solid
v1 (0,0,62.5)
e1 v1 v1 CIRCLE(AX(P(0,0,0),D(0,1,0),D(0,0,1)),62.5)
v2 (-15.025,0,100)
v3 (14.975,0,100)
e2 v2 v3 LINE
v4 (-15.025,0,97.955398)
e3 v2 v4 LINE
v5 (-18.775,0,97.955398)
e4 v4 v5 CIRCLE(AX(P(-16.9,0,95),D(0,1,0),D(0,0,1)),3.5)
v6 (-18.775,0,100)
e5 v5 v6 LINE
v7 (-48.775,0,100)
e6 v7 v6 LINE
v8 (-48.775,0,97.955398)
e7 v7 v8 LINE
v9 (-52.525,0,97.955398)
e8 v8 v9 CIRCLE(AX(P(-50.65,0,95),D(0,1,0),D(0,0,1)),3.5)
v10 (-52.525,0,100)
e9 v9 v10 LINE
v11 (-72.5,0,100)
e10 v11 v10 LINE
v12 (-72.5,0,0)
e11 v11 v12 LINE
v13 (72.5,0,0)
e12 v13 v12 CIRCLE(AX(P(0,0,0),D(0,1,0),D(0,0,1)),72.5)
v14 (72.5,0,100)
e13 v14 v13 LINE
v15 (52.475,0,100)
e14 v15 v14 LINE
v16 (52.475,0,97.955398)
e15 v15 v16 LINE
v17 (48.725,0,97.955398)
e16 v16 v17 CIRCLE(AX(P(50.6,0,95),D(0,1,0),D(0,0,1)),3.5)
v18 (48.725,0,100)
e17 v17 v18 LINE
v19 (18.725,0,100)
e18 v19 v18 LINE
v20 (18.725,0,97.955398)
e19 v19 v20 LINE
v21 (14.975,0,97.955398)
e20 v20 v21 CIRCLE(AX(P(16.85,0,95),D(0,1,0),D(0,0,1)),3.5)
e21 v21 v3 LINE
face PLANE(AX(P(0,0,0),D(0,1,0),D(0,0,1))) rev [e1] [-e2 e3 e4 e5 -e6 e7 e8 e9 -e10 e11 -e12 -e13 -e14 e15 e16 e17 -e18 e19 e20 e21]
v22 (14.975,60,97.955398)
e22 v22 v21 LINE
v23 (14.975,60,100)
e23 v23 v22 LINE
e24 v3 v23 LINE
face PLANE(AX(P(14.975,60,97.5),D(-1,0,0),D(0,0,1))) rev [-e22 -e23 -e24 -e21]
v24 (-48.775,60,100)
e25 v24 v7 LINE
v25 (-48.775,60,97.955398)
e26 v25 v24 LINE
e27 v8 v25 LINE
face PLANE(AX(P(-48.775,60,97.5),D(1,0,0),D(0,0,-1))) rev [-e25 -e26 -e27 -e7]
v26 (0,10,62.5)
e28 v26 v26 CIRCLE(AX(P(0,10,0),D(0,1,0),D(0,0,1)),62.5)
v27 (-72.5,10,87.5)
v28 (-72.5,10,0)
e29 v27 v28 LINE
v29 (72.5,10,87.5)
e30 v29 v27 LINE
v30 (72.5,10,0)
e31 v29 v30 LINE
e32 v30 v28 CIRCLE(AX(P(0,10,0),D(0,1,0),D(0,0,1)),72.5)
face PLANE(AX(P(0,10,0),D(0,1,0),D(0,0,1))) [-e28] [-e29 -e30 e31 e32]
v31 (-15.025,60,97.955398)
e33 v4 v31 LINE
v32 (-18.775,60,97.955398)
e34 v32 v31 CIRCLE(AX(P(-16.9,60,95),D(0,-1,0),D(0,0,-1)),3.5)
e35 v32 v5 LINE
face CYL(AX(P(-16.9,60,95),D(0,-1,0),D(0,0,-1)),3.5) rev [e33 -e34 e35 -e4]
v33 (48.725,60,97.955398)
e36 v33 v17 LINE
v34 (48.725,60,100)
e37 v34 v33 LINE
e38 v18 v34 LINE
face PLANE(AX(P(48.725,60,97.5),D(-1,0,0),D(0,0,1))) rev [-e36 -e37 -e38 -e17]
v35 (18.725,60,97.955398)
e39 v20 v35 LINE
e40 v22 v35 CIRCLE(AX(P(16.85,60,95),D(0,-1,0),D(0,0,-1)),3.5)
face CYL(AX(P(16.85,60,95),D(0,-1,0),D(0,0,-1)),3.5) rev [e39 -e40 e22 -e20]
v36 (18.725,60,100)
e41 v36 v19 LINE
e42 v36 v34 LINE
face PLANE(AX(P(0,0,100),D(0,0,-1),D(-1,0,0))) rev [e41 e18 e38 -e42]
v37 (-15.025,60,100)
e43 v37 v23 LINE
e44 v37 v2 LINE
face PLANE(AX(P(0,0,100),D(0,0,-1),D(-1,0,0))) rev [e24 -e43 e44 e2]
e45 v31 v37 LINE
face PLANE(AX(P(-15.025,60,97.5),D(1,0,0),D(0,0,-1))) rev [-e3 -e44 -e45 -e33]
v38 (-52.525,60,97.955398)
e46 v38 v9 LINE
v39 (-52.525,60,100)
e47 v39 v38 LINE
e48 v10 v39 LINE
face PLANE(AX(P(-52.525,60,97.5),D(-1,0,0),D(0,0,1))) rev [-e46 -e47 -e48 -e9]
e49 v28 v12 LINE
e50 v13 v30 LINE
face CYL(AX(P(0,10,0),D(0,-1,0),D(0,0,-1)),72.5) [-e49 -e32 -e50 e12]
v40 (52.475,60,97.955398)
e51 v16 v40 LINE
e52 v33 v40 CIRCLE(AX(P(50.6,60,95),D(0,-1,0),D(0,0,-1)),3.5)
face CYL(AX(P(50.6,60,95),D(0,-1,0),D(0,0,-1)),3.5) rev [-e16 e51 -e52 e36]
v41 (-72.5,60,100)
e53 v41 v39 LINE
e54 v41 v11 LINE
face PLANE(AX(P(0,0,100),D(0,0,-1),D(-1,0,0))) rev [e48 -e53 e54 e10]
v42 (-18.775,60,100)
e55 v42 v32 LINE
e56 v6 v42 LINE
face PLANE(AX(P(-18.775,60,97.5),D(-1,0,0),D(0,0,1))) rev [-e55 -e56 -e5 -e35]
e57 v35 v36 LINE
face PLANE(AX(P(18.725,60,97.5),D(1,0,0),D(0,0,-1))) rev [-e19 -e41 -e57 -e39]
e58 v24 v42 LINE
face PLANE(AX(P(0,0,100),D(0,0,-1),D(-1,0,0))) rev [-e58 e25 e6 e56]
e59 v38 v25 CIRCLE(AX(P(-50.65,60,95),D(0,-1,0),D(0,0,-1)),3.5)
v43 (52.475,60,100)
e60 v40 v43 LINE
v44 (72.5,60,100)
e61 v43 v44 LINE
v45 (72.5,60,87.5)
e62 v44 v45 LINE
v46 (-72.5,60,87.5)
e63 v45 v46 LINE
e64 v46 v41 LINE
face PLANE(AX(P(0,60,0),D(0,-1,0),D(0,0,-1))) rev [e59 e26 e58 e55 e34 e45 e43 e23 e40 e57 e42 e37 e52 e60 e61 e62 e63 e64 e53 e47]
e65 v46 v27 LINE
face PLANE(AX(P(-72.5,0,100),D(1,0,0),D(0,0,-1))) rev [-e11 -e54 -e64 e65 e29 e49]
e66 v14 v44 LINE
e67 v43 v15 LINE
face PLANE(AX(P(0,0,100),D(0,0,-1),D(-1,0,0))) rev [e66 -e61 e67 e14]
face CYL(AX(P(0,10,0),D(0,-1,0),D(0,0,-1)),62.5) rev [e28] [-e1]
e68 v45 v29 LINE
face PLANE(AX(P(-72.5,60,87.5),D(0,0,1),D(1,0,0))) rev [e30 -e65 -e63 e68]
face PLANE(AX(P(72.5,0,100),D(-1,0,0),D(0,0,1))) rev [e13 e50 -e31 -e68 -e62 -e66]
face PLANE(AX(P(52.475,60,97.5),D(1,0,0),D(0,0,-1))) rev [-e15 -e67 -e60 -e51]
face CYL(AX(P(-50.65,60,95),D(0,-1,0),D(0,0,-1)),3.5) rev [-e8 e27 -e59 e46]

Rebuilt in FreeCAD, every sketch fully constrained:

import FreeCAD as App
import Part
import Sketcher

V = App.Vector
Q = App.Units.Quantity


def add_polygon(sketch, points):
    """Adds a closed chain of lines whose ends are joined by coincident constraints."""
    first, n = sketch.GeometryCount, len(points)
    for a, b in zip(points, points[1:] + points[:1]):
        sketch.addGeometry(Part.LineSegment(App.Vector(*a, 0), App.Vector(*b, 0)), False)
    for i in range(n):
        sketch.addConstraint(Sketcher.Constraint("Coincident", first + i, 2, first + (i + 1) % n, 1))

doc = App.newDocument("Part")
body = doc.addObject("PartDesign::Body", "Body")

# Sketch on XZ plane
sketch1 = doc.addObject("Sketcher::SketchObject", "Sketch")
body.addObject(sketch1)
sketch1.AttachmentSupport = (doc.XZ_Plane, [""])
sketch1.MapMode = "FlatFace"
sketch1.addGeometry(Part.Circle(V(0, 0, 0), V(0, 0, 1), 72.5), False)
sketch1.addGeometry(Part.Circle(V(0, 0, 0), V(0, 0, 1), 62.5), False)
sketch1.addConstraint(Sketcher.Constraint("Coincident", 0, 3, -1, 1))
sketch1.addConstraint(Sketcher.Constraint("Coincident", 1, 3, -1, 1))
sketch1.addConstraint(Sketcher.Constraint("Diameter", 0, Q("145 mm")))
sketch1.addConstraint(Sketcher.Constraint("Diameter", 1, Q("125 mm")))
pad1 = doc.addObject("PartDesign::Pad", "Pad")
body.addObject(pad1)
pad1.Profile = sketch1
pad1.Length = 10
pad1.Reversed = True

# Sketch on XY plane
sketch2 = doc.addObject("Sketcher::SketchObject", "Sketch001")
body.addObject(sketch2)
sketch2.AttachmentSupport = (doc.XY_Plane, [""])
sketch2.MapMode = "FlatFace"
add_polygon(sketch2, [(-72.5, 10), (-72.5, 0), (-47.5, 0), (-47.5, 10)])  # lines 0-3
add_polygon(sketch2, [(47.5, 10), (47.5, 0), (72.5, 0), (72.5, 10)])  # lines 4-7
sketch2.addConstraint(Sketcher.Constraint("Vertical", 0))
sketch2.addConstraint(Sketcher.Constraint("Horizontal", 1))
sketch2.addConstraint(Sketcher.Constraint("Vertical", 2))
sketch2.addConstraint(Sketcher.Constraint("Horizontal", 3))
sketch2.addConstraint(Sketcher.Constraint("Vertical", 4))
sketch2.addConstraint(Sketcher.Constraint("Horizontal", 5))
sketch2.addConstraint(Sketcher.Constraint("Vertical", 6))
sketch2.addConstraint(Sketcher.Constraint("Horizontal", 7))
sketch2.addConstraint(Sketcher.Constraint("Symmetric", 1, 2, 4, 2, -1, 1))
sketch2.addConstraint(Sketcher.Constraint("Symmetric", 0, 2, 5, 2, -2))
sketch2.addConstraint(Sketcher.Constraint("Horizontal", 3, 2, 6, 2))
sketch2.addConstraint(Sketcher.Constraint("DistanceX", 1, 1, 1, 2, Q("25 mm")))
sketch2.addConstraint(Sketcher.Constraint("DistanceY", 0, 2, 0, 1, Q("10 mm")))
sketch2.addConstraint(Sketcher.Constraint("DistanceX", 1, 2, 4, 2, Q("95 mm")))
pad2 = doc.addObject("PartDesign::Pad", "Pad001")
body.addObject(pad2)
pad2.Profile = sketch2
pad2.Length = 100

# Sketch on XZ plane
sketch3 = doc.addObject("Sketcher::SketchObject", "Sketch002")
body.addObject(sketch3)
sketch3.AttachmentSupport = (doc.XZ_Plane, [""])
sketch3.MapMode = "FlatFace"
sketch3.AttachmentOffset = App.Placement(V(0, 0, -10), App.Rotation())
add_polygon(sketch3, [(-72.5, 50), (-72.5, 100), (72.5, 100), (72.5, 50)])  # lines 0-3
sketch3.addConstraint(Sketcher.Constraint("Vertical", 0))
sketch3.addConstraint(Sketcher.Constraint("Horizontal", 1))
sketch3.addConstraint(Sketcher.Constraint("Vertical", 2))
sketch3.addConstraint(Sketcher.Constraint("Horizontal", 3))
sketch3.addConstraint(Sketcher.Constraint("DistanceX", 1, 1, 1, 2, Q("145 mm")))
sketch3.addConstraint(Sketcher.Constraint("DistanceY", 0, 1, 0, 2, Q("50 mm")))
sketch3.addConstraint(Sketcher.Constraint("DistanceY", -1, 1, 0, 2, Q("100 mm")))
sketch3.addConstraint(Sketcher.Constraint("DistanceX", 0, 2, -1, 1, Q("72.5 mm")))
pad3 = doc.addObject("PartDesign::Pad", "Pad002")
body.addObject(pad3)
pad3.Profile = sketch3
pad3.Length = 10

# Sketch on XZ plane
sketch4 = doc.addObject("Sketcher::SketchObject", "Sketch003")
body.addObject(sketch4)
sketch4.AttachmentSupport = (doc.XZ_Plane, [""])
sketch4.MapMode = "FlatFace"
sketch4.addGeometry(Part.Circle(V(0, 0, 0), V(0, 0, 1), 62.5), False)
sketch4.addConstraint(Sketcher.Constraint("Coincident", 0, 3, -1, 1))
sketch4.addConstraint(Sketcher.Constraint("Diameter", 0, Q("125 mm")))
pocket1 = doc.addObject("PartDesign::Pocket", "Pocket")
body.addObject(pocket1)
pocket1.Profile = sketch4
pocket1.Length = 10

# Sketch on XZ plane
sketch5 = doc.addObject("Sketcher::SketchObject", "Sketch004")
body.addObject(sketch5)
sketch5.AttachmentSupport = (doc.XZ_Plane, [""])
sketch5.MapMode = "FlatFace"
sketch5.AttachmentOffset = App.Placement(V(0, 0, -10), App.Rotation())
add_polygon(sketch5, [(-72.5, 87.5), (-72.5, 100), (72.5, 100), (72.5, 87.5)])  # lines 0-3
sketch5.addConstraint(Sketcher.Constraint("Vertical", 0))
sketch5.addConstraint(Sketcher.Constraint("Horizontal", 1))
sketch5.addConstraint(Sketcher.Constraint("Vertical", 2))
sketch5.addConstraint(Sketcher.Constraint("Horizontal", 3))
sketch5.addConstraint(Sketcher.Constraint("DistanceX", 1, 1, 1, 2, Q("145 mm")))
sketch5.addConstraint(Sketcher.Constraint("DistanceY", 0, 1, 0, 2, Q("12.5 mm")))
sketch5.addConstraint(Sketcher.Constraint("DistanceY", -1, 1, 0, 2, Q("100 mm")))
sketch5.addConstraint(Sketcher.Constraint("DistanceX", 0, 2, -1, 1, Q("72.5 mm")))
pad4 = doc.addObject("PartDesign::Pad", "Pad003")
body.addObject(pad4)
pad4.Profile = sketch5
pad4.Length = 50
pad4.Reversed = True

# Sketch on XZ plane
sketch6 = doc.addObject("Sketcher::SketchObject", "Sketch005")
body.addObject(sketch6)
sketch6.AttachmentSupport = (doc.XZ_Plane, [""])
sketch6.MapMode = "FlatFace"
sketch6.addGeometry(Part.Circle(V(-50.65, 95, 0), V(0, 0, 1), 3.5), False)
sketch6.addGeometry(Part.Circle(V(-16.9, 95, 0), V(0, 0, 1), 3.5), False)
sketch6.addGeometry(Part.Circle(V(16.85, 95, 0), V(0, 0, 1), 3.5), False)
sketch6.addGeometry(Part.Circle(V(50.6, 95, 0), V(0, 0, 1), 3.5), False)
sketch6.addConstraint(Sketcher.Constraint("Equal", 0, 1))
sketch6.addConstraint(Sketcher.Constraint("Equal", 1, 2))
sketch6.addConstraint(Sketcher.Constraint("Equal", 2, 3))
sketch6.addConstraint(Sketcher.Constraint("Horizontal", 0, 3, 1, 3))
sketch6.addConstraint(Sketcher.Constraint("Horizontal", 1, 3, 2, 3))
sketch6.addConstraint(Sketcher.Constraint("Horizontal", 2, 3, 3, 3))
sketch6.addConstraint(Sketcher.Constraint("Diameter", 0, Q("7 mm")))
sketch6.addConstraint(Sketcher.Constraint("DistanceY", -1, 1, 0, 3, Q("95 mm")))
sketch6.addConstraint(Sketcher.Constraint("DistanceX", 1, 3, -1, 1, Q("16.9 mm")))
sketch6.addConstraint(Sketcher.Constraint("DistanceX", -1, 1, 3, 3, Q("50.6 mm")))
sketch6.addConstraint(Sketcher.Constraint("DistanceX", 0, 3, 2, 3, Q("67.5 mm")))
sketch6.addConstraint(Sketcher.Constraint("DistanceX", 0, 3, -1, 1, Q("50.65 mm")))
pocket2 = doc.addObject("PartDesign::Pocket", "Pocket001")
body.addObject(pocket2)
pocket2.Profile = sketch6
pocket2.Type = "ThroughAll"
pocket2.Midplane = True

# Sketch on XZ plane
sketch7 = doc.addObject("Sketcher::SketchObject", "Sketch006")
body.addObject(sketch7)
sketch7.AttachmentSupport = (doc.XZ_Plane, [""])
sketch7.MapMode = "FlatFace"
add_polygon(sketch7, [(-18.775, 102.5), (-18.775, 97.5), (-15.025, 97.5), (-15.025, 102.5)])  # lines 0-3
add_polygon(sketch7, [(-52.525, 102.5), (-52.525, 97.5), (-48.775, 97.5), (-48.775, 102.5)])  # lines 4-7
add_polygon(sketch7, [(14.975, 102.5), (14.975, 97.5), (18.725, 97.5), (18.725, 102.5)])  # lines 8-11
add_polygon(sketch7, [(48.725, 102.5), (48.725, 97.5), (52.475, 97.5), (52.475, 102.5)])  # lines 12-15
sketch7.addConstraint(Sketcher.Constraint("Vertical", 0))
sketch7.addConstraint(Sketcher.Constraint("Horizontal", 1))
sketch7.addConstraint(Sketcher.Constraint("Vertical", 2))
sketch7.addConstraint(Sketcher.Constraint("Horizontal", 3))
sketch7.addConstraint(Sketcher.Constraint("Vertical", 4))
sketch7.addConstraint(Sketcher.Constraint("Horizontal", 5))
sketch7.addConstraint(Sketcher.Constraint("Vertical", 6))
sketch7.addConstraint(Sketcher.Constraint("Horizontal", 7))
sketch7.addConstraint(Sketcher.Constraint("Vertical", 8))
sketch7.addConstraint(Sketcher.Constraint("Horizontal", 9))
sketch7.addConstraint(Sketcher.Constraint("Vertical", 10))
sketch7.addConstraint(Sketcher.Constraint("Horizontal", 11))
sketch7.addConstraint(Sketcher.Constraint("Vertical", 12))
sketch7.addConstraint(Sketcher.Constraint("Horizontal", 13))
sketch7.addConstraint(Sketcher.Constraint("Vertical", 14))
sketch7.addConstraint(Sketcher.Constraint("Horizontal", 15))
sketch7.addConstraint(Sketcher.Constraint("Horizontal", 1, 2, 4, 2))
sketch7.addConstraint(Sketcher.Constraint("Horizontal", 3, 2, 6, 2))
sketch7.addConstraint(Sketcher.Constraint("Horizontal", 5, 2, 8, 2))
sketch7.addConstraint(Sketcher.Constraint("Horizontal", 7, 2, 10, 2))
sketch7.addConstraint(Sketcher.Constraint("Horizontal", 9, 2, 12, 2))
sketch7.addConstraint(Sketcher.Constraint("Horizontal", 11, 2, 14, 2))
sketch7.addConstraint(Sketcher.Constraint("Equal", 3, 5))
sketch7.addConstraint(Sketcher.Constraint("Equal", 7, 9))
sketch7.addConstraint(Sketcher.Constraint("Equal", 11, 13))
sketch7.addConstraint(Sketcher.Constraint("DistanceY", 0, 2, 0, 1, Q("5 mm")))
sketch7.addConstraint(Sketcher.Constraint("DistanceX", 5, 2, 0, 2, Q("30 mm")))
sketch7.addConstraint(Sketcher.Constraint("DistanceX", 1, 2, 8, 2, Q("30 mm")))
sketch7.addConstraint(Sketcher.Constraint("DistanceX", 9, 2, 12, 2, Q("30 mm")))
sketch7.addConstraint(Sketcher.Constraint("DistanceX", 1, 1, 1, 2, Q("3.75 mm")))
sketch7.addConstraint(Sketcher.Constraint("DistanceY", -1, 1, 0, 2, Q("97.5 mm")))
sketch7.addConstraint(Sketcher.Constraint("DistanceX", 0, 2, -1, 1, Q("18.775 mm")))
pocket3 = doc.addObject("PartDesign::Pocket", "Pocket002")
body.addObject(pocket3)
pocket3.Profile = sketch7
pocket3.Type = "ThroughAll"
pocket3.Midplane = True

doc.recompute()
